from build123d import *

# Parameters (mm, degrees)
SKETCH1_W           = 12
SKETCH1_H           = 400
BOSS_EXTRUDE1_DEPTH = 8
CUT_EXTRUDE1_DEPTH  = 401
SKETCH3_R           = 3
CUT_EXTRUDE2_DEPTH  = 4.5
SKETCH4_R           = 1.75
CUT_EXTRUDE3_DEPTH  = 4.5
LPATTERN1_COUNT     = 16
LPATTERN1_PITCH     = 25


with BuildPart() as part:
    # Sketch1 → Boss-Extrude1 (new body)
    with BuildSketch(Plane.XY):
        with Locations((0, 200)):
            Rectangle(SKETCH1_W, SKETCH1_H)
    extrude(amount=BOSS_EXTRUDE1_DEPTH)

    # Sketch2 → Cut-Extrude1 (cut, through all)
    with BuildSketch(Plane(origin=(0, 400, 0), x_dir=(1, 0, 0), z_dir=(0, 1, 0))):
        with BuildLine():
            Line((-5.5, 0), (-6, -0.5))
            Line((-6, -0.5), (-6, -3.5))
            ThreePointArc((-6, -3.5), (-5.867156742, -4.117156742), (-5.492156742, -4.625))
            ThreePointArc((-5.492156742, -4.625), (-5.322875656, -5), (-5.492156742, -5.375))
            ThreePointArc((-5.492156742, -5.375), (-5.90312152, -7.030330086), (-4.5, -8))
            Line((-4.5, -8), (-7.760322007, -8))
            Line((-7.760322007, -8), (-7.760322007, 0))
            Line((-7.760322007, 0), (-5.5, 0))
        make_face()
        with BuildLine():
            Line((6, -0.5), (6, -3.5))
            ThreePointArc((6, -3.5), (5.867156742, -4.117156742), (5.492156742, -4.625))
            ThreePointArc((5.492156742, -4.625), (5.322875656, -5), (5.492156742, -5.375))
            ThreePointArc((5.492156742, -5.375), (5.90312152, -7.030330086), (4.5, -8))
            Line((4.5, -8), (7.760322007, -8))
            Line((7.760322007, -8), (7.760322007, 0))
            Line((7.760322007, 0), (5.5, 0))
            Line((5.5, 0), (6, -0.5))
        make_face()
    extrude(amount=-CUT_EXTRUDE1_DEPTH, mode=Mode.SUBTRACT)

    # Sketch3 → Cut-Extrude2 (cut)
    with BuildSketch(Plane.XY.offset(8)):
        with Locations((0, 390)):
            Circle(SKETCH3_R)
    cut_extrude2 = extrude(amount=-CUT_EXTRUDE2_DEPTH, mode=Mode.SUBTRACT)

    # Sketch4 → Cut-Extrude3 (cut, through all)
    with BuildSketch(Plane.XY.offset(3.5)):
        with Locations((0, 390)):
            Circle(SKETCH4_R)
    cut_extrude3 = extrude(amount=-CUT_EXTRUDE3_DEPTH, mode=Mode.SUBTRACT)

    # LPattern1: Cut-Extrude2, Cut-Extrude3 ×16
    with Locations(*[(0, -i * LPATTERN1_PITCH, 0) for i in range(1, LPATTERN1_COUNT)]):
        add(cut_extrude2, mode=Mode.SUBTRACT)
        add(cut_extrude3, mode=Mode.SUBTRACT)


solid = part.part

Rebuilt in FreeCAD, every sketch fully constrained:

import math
import FreeCAD as App
import Part
import Sketcher
from FreeCAD import Vector
Q = App.Units.Quantity

doc = App.newDocument("Part")
body = doc.addObject("PartDesign::Body", "Body")

# Sketch on XY plane
sketch1 = body.newObject("Sketcher::SketchObject", "Sketch")
sketch1.AttachmentSupport = (doc.getObject("XY_Plane"), [""])
sketch1.MapMode = "FlatFace"
sketch1.addGeometry([
    Part.LineSegment(Vector(-6, 400, 0), Vector(-6, 0, 0)),
    Part.LineSegment(Vector(-6, 0, 0), Vector(6, 0, 0)),
    Part.LineSegment(Vector(6, 0, 0), Vector(6, 400, 0)),
    Part.LineSegment(Vector(6, 400, 0), Vector(-6, 400, 0)),
], False)
sketch1.addConstraint([
    Sketcher.Constraint("Coincident", 0, 2, 1, 1),
    Sketcher.Constraint("Coincident", 1, 2, 2, 1),
    Sketcher.Constraint("Coincident", 2, 2, 3, 1),
    Sketcher.Constraint("Coincident", 3, 2, 0, 1),
    Sketcher.Constraint("Vertical", 0),
    Sketcher.Constraint("Horizontal", 1),
    Sketcher.Constraint("Vertical", 2),
    Sketcher.Constraint("Horizontal", 3),
    Sketcher.Constraint("Symmetric", 0, 2, 1, 2, -1, 1),
    Sketcher.Constraint("DistanceX", 1, 1, 1, 2, Q("12 mm")),
    Sketcher.Constraint("DistanceY", 0, 2, 0, 1, Q("400 mm")),
])
pad1 = body.newObject("PartDesign::Pad", "Pad")
pad1.Profile = sketch1
pad1.Length = 8

# Sketch on XZ plane
sketch2 = body.newObject("Sketcher::SketchObject", "Sketch001")
sketch2.AttachmentSupport = (doc.getObject("XZ_Plane"), [""])
sketch2.MapMode = "FlatFace"
sketch2.AttachmentOffset = App.Placement(Vector(0, 0, -400), App.Rotation())
sketch2.addGeometry([
    Part.LineSegment(Vector(-6, 0.5, 0), Vector(-5.5, 0, 0)),  # 0
    Part.LineSegment(Vector(-5.5, 0, 0), Vector(-7.760322, 0, 0)),  # 1
    Part.LineSegment(Vector(-7.760322, 0, 0), Vector(-7.760322, 8, 0)),  # 2
    Part.LineSegment(Vector(-7.760322, 8, 0), Vector(-4.5, 8, 0)),  # 3
    Part.ArcOfCircle(Part.Circle(Vector(-4.5, 6.5, 0), Vector(0, 0, 1), 1.5), math.radians(90), math.radians(228.590378)),  # 4
    Part.ArcOfCircle(Part.Circle(Vector(-5.822876, 5, 0), Vector(0, 0, 1), 0.5), math.radians(-48.590378), math.radians(48.590378)),  # 5
    Part.ArcOfCircle(Part.Circle(Vector(-4.5, 3.5, 0), Vector(0, 0, 1), 1.5), math.radians(131.409622), math.radians(180)),  # 6
    Part.LineSegment(Vector(-6, 3.5, 0), Vector(-6, 0.5, 0)),  # 7
    Part.LineSegment(Vector(6, 0.5, 0), Vector(6, 3.5, 0)),  # 8
    Part.ArcOfCircle(Part.Circle(Vector(4.5, 3.5, 0), Vector(0, 0, 1), 1.5), math.radians(0), math.radians(48.590378)),  # 9
    Part.ArcOfCircle(Part.Circle(Vector(5.822876, 5, 0), Vector(0, 0, 1), 0.5), math.radians(131.409622), math.radians(228.590378)),  # 10
    Part.ArcOfCircle(Part.Circle(Vector(4.5, 6.5, 0), Vector(0, 0, 1), 1.5), math.radians(-48.590378), math.radians(90)),  # 11
    Part.LineSegment(Vector(4.5, 8, 0), Vector(7.760322, 8, 0)),  # 12
    Part.LineSegment(Vector(7.760322, 8, 0), Vector(7.760322, 0, 0)),  # 13
    Part.LineSegment(Vector(7.760322, 0, 0), Vector(5.5, 0, 0)),  # 14
    Part.LineSegment(Vector(5.5, 0, 0), Vector(6, 0.5, 0)),  # 15
], False)
sketch2.addConstraint([
    Sketcher.Constraint("Coincident", 0, 2, 1, 1),
    Sketcher.Constraint("Coincident", 1, 2, 2, 1),
    Sketcher.Constraint("Coincident", 2, 2, 3, 1),
    Sketcher.Constraint("Tangent", 3, 2, 4, 1),
    Sketcher.Constraint("Tangent", 4, 2, 5, 2),
    Sketcher.Constraint("Tangent", 5, 1, 6, 1),
    Sketcher.Constraint("Tangent", 6, 2, 7, 1),
    Sketcher.Constraint("Coincident", 7, 2, 0, 1),
    Sketcher.Constraint("Tangent", 8, 2, 9, 1),
    Sketcher.Constraint("Tangent", 9, 2, 10, 2),
    Sketcher.Constraint("Tangent", 10, 1, 11, 1),
    Sketcher.Constraint("Tangent", 11, 2, 12, 1),
    Sketcher.Constraint("Coincident", 12, 2, 13, 1),
    Sketcher.Constraint("Coincident", 13, 2, 14, 1),
    Sketcher.Constraint("Coincident", 14, 2, 15, 1),
    Sketcher.Constraint("Coincident", 15, 2, 8, 1),
    Sketcher.Constraint("Horizontal", 1),
    Sketcher.Constraint("Vertical", 2),
    Sketcher.Constraint("Horizontal", 3),
    Sketcher.Constraint("Vertical", 7),
    Sketcher.Constraint("Vertical", 8),
    Sketcher.Constraint("Horizontal", 12),
    Sketcher.Constraint("Vertical", 13),
    Sketcher.Constraint("Horizontal", 14),
    Sketcher.Constraint("Equal", 4, 6),
    Sketcher.Constraint("Equal", 6, 9),
    Sketcher.Constraint("Equal", 5, 10),
    Sketcher.Constraint("Equal", 9, 11),
    Sketcher.Constraint("Symmetric", 1, 2, 13, 2, -1, 1),
    Sketcher.Constraint("Symmetric", 6, 3, 9, 3, -2),
    Sketcher.Constraint("Symmetric", 4, 3, 11, 3, -2),
    Sketcher.Constraint("Symmetric", 0, 2, 14, 2, -2),
    Sketcher.Constraint("Perpendicular", 0, 15),
    Sketcher.Constraint("Horizontal", 7, 2, 15, 2),
    Sketcher.Constraint("Vertical", 4, 3, 6, 3),
    Sketcher.Constraint("Radius", 4, Q("1.5 mm")),
    Sketcher.Constraint("Radius", 5, Q("0.5 mm")),
    Sketcher.Constraint("DistanceY", 2, 1, 2, 2, Q("8 mm")),
    Sketcher.Constraint("DistanceY", 7, 2, 7, 1, Q("3 mm")),
    Sketcher.Constraint("DistanceY", -1, 1, 5, 3, Q("5 mm")),
    Sketcher.Constraint("DistanceX", 6, 2, -1, 1, Q("6 mm")),
    Sketcher.Constraint("DistanceX", 1, 2, 1, 1, Q("2.260322 mm")),
])
pocket1 = body.newObject("PartDesign::Pocket", "Pocket")
pocket1.Profile = sketch2
pocket1.Type = "ThroughAll"
pocket1.Reversed = True

# Sketch on XY plane
sketch3 = body.newObject("Sketcher::SketchObject", "Sketch002")
sketch3.AttachmentSupport = (doc.getObject("XY_Plane"), [""])
sketch3.MapMode = "FlatFace"
sketch3.AttachmentOffset = App.Placement(Vector(0, 0, 8), App.Rotation())
sketch3.addGeometry(Part.Circle(Vector(0, 390, 0), Vector(0, 0, 1), 3), False)
sketch3.addConstraint([
    Sketcher.Constraint("PointOnObject", 0, 3, -2),
    Sketcher.Constraint("Diameter", 0, Q("6 mm")),
    Sketcher.Constraint("DistanceY", -1, 1, 0, 3, Q("390 mm")),
])
pocket2 = body.newObject("PartDesign::Pocket", "Pocket001")
pocket2.Profile = sketch3
pocket2.Length = 4.5

# Sketch on XY plane
sketch4 = body.newObject("Sketcher::SketchObject", "Sketch003")
sketch4.AttachmentSupport = (doc.getObject("XY_Plane"), [""])
sketch4.MapMode = "FlatFace"
sketch4.AttachmentOffset = App.Placement(Vector(0, 0, 3.5), App.Rotation())
sketch4.addGeometry(Part.Circle(Vector(0, 390, 0), Vector(0, 0, 1), 1.75), False)
sketch4.addConstraint([
    Sketcher.Constraint("PointOnObject", 0, 3, -2),
    Sketcher.Constraint("Diameter", 0, Q("3.5 mm")),
    Sketcher.Constraint("DistanceY", -1, 1, 0, 3, Q("390 mm")),
])
pocket3 = body.newObject("PartDesign::Pocket", "Pocket002")
pocket3.Profile = sketch4
pocket3.Type = "ThroughAll"
doc.recompute()

linearpattern = body.newObject("PartDesign::LinearPattern", "LinearPattern")
linearpattern.Originals = [pocket2, pocket3]
linearpattern.Direction = (doc.getObject("Y_Axis"), [""])
linearpattern.Mode = "offset"
linearpattern.Offset = 25
linearpattern.Occurrences = 16
linearpattern.Reversed = True
body.Tip = linearpattern

doc.recompute()
